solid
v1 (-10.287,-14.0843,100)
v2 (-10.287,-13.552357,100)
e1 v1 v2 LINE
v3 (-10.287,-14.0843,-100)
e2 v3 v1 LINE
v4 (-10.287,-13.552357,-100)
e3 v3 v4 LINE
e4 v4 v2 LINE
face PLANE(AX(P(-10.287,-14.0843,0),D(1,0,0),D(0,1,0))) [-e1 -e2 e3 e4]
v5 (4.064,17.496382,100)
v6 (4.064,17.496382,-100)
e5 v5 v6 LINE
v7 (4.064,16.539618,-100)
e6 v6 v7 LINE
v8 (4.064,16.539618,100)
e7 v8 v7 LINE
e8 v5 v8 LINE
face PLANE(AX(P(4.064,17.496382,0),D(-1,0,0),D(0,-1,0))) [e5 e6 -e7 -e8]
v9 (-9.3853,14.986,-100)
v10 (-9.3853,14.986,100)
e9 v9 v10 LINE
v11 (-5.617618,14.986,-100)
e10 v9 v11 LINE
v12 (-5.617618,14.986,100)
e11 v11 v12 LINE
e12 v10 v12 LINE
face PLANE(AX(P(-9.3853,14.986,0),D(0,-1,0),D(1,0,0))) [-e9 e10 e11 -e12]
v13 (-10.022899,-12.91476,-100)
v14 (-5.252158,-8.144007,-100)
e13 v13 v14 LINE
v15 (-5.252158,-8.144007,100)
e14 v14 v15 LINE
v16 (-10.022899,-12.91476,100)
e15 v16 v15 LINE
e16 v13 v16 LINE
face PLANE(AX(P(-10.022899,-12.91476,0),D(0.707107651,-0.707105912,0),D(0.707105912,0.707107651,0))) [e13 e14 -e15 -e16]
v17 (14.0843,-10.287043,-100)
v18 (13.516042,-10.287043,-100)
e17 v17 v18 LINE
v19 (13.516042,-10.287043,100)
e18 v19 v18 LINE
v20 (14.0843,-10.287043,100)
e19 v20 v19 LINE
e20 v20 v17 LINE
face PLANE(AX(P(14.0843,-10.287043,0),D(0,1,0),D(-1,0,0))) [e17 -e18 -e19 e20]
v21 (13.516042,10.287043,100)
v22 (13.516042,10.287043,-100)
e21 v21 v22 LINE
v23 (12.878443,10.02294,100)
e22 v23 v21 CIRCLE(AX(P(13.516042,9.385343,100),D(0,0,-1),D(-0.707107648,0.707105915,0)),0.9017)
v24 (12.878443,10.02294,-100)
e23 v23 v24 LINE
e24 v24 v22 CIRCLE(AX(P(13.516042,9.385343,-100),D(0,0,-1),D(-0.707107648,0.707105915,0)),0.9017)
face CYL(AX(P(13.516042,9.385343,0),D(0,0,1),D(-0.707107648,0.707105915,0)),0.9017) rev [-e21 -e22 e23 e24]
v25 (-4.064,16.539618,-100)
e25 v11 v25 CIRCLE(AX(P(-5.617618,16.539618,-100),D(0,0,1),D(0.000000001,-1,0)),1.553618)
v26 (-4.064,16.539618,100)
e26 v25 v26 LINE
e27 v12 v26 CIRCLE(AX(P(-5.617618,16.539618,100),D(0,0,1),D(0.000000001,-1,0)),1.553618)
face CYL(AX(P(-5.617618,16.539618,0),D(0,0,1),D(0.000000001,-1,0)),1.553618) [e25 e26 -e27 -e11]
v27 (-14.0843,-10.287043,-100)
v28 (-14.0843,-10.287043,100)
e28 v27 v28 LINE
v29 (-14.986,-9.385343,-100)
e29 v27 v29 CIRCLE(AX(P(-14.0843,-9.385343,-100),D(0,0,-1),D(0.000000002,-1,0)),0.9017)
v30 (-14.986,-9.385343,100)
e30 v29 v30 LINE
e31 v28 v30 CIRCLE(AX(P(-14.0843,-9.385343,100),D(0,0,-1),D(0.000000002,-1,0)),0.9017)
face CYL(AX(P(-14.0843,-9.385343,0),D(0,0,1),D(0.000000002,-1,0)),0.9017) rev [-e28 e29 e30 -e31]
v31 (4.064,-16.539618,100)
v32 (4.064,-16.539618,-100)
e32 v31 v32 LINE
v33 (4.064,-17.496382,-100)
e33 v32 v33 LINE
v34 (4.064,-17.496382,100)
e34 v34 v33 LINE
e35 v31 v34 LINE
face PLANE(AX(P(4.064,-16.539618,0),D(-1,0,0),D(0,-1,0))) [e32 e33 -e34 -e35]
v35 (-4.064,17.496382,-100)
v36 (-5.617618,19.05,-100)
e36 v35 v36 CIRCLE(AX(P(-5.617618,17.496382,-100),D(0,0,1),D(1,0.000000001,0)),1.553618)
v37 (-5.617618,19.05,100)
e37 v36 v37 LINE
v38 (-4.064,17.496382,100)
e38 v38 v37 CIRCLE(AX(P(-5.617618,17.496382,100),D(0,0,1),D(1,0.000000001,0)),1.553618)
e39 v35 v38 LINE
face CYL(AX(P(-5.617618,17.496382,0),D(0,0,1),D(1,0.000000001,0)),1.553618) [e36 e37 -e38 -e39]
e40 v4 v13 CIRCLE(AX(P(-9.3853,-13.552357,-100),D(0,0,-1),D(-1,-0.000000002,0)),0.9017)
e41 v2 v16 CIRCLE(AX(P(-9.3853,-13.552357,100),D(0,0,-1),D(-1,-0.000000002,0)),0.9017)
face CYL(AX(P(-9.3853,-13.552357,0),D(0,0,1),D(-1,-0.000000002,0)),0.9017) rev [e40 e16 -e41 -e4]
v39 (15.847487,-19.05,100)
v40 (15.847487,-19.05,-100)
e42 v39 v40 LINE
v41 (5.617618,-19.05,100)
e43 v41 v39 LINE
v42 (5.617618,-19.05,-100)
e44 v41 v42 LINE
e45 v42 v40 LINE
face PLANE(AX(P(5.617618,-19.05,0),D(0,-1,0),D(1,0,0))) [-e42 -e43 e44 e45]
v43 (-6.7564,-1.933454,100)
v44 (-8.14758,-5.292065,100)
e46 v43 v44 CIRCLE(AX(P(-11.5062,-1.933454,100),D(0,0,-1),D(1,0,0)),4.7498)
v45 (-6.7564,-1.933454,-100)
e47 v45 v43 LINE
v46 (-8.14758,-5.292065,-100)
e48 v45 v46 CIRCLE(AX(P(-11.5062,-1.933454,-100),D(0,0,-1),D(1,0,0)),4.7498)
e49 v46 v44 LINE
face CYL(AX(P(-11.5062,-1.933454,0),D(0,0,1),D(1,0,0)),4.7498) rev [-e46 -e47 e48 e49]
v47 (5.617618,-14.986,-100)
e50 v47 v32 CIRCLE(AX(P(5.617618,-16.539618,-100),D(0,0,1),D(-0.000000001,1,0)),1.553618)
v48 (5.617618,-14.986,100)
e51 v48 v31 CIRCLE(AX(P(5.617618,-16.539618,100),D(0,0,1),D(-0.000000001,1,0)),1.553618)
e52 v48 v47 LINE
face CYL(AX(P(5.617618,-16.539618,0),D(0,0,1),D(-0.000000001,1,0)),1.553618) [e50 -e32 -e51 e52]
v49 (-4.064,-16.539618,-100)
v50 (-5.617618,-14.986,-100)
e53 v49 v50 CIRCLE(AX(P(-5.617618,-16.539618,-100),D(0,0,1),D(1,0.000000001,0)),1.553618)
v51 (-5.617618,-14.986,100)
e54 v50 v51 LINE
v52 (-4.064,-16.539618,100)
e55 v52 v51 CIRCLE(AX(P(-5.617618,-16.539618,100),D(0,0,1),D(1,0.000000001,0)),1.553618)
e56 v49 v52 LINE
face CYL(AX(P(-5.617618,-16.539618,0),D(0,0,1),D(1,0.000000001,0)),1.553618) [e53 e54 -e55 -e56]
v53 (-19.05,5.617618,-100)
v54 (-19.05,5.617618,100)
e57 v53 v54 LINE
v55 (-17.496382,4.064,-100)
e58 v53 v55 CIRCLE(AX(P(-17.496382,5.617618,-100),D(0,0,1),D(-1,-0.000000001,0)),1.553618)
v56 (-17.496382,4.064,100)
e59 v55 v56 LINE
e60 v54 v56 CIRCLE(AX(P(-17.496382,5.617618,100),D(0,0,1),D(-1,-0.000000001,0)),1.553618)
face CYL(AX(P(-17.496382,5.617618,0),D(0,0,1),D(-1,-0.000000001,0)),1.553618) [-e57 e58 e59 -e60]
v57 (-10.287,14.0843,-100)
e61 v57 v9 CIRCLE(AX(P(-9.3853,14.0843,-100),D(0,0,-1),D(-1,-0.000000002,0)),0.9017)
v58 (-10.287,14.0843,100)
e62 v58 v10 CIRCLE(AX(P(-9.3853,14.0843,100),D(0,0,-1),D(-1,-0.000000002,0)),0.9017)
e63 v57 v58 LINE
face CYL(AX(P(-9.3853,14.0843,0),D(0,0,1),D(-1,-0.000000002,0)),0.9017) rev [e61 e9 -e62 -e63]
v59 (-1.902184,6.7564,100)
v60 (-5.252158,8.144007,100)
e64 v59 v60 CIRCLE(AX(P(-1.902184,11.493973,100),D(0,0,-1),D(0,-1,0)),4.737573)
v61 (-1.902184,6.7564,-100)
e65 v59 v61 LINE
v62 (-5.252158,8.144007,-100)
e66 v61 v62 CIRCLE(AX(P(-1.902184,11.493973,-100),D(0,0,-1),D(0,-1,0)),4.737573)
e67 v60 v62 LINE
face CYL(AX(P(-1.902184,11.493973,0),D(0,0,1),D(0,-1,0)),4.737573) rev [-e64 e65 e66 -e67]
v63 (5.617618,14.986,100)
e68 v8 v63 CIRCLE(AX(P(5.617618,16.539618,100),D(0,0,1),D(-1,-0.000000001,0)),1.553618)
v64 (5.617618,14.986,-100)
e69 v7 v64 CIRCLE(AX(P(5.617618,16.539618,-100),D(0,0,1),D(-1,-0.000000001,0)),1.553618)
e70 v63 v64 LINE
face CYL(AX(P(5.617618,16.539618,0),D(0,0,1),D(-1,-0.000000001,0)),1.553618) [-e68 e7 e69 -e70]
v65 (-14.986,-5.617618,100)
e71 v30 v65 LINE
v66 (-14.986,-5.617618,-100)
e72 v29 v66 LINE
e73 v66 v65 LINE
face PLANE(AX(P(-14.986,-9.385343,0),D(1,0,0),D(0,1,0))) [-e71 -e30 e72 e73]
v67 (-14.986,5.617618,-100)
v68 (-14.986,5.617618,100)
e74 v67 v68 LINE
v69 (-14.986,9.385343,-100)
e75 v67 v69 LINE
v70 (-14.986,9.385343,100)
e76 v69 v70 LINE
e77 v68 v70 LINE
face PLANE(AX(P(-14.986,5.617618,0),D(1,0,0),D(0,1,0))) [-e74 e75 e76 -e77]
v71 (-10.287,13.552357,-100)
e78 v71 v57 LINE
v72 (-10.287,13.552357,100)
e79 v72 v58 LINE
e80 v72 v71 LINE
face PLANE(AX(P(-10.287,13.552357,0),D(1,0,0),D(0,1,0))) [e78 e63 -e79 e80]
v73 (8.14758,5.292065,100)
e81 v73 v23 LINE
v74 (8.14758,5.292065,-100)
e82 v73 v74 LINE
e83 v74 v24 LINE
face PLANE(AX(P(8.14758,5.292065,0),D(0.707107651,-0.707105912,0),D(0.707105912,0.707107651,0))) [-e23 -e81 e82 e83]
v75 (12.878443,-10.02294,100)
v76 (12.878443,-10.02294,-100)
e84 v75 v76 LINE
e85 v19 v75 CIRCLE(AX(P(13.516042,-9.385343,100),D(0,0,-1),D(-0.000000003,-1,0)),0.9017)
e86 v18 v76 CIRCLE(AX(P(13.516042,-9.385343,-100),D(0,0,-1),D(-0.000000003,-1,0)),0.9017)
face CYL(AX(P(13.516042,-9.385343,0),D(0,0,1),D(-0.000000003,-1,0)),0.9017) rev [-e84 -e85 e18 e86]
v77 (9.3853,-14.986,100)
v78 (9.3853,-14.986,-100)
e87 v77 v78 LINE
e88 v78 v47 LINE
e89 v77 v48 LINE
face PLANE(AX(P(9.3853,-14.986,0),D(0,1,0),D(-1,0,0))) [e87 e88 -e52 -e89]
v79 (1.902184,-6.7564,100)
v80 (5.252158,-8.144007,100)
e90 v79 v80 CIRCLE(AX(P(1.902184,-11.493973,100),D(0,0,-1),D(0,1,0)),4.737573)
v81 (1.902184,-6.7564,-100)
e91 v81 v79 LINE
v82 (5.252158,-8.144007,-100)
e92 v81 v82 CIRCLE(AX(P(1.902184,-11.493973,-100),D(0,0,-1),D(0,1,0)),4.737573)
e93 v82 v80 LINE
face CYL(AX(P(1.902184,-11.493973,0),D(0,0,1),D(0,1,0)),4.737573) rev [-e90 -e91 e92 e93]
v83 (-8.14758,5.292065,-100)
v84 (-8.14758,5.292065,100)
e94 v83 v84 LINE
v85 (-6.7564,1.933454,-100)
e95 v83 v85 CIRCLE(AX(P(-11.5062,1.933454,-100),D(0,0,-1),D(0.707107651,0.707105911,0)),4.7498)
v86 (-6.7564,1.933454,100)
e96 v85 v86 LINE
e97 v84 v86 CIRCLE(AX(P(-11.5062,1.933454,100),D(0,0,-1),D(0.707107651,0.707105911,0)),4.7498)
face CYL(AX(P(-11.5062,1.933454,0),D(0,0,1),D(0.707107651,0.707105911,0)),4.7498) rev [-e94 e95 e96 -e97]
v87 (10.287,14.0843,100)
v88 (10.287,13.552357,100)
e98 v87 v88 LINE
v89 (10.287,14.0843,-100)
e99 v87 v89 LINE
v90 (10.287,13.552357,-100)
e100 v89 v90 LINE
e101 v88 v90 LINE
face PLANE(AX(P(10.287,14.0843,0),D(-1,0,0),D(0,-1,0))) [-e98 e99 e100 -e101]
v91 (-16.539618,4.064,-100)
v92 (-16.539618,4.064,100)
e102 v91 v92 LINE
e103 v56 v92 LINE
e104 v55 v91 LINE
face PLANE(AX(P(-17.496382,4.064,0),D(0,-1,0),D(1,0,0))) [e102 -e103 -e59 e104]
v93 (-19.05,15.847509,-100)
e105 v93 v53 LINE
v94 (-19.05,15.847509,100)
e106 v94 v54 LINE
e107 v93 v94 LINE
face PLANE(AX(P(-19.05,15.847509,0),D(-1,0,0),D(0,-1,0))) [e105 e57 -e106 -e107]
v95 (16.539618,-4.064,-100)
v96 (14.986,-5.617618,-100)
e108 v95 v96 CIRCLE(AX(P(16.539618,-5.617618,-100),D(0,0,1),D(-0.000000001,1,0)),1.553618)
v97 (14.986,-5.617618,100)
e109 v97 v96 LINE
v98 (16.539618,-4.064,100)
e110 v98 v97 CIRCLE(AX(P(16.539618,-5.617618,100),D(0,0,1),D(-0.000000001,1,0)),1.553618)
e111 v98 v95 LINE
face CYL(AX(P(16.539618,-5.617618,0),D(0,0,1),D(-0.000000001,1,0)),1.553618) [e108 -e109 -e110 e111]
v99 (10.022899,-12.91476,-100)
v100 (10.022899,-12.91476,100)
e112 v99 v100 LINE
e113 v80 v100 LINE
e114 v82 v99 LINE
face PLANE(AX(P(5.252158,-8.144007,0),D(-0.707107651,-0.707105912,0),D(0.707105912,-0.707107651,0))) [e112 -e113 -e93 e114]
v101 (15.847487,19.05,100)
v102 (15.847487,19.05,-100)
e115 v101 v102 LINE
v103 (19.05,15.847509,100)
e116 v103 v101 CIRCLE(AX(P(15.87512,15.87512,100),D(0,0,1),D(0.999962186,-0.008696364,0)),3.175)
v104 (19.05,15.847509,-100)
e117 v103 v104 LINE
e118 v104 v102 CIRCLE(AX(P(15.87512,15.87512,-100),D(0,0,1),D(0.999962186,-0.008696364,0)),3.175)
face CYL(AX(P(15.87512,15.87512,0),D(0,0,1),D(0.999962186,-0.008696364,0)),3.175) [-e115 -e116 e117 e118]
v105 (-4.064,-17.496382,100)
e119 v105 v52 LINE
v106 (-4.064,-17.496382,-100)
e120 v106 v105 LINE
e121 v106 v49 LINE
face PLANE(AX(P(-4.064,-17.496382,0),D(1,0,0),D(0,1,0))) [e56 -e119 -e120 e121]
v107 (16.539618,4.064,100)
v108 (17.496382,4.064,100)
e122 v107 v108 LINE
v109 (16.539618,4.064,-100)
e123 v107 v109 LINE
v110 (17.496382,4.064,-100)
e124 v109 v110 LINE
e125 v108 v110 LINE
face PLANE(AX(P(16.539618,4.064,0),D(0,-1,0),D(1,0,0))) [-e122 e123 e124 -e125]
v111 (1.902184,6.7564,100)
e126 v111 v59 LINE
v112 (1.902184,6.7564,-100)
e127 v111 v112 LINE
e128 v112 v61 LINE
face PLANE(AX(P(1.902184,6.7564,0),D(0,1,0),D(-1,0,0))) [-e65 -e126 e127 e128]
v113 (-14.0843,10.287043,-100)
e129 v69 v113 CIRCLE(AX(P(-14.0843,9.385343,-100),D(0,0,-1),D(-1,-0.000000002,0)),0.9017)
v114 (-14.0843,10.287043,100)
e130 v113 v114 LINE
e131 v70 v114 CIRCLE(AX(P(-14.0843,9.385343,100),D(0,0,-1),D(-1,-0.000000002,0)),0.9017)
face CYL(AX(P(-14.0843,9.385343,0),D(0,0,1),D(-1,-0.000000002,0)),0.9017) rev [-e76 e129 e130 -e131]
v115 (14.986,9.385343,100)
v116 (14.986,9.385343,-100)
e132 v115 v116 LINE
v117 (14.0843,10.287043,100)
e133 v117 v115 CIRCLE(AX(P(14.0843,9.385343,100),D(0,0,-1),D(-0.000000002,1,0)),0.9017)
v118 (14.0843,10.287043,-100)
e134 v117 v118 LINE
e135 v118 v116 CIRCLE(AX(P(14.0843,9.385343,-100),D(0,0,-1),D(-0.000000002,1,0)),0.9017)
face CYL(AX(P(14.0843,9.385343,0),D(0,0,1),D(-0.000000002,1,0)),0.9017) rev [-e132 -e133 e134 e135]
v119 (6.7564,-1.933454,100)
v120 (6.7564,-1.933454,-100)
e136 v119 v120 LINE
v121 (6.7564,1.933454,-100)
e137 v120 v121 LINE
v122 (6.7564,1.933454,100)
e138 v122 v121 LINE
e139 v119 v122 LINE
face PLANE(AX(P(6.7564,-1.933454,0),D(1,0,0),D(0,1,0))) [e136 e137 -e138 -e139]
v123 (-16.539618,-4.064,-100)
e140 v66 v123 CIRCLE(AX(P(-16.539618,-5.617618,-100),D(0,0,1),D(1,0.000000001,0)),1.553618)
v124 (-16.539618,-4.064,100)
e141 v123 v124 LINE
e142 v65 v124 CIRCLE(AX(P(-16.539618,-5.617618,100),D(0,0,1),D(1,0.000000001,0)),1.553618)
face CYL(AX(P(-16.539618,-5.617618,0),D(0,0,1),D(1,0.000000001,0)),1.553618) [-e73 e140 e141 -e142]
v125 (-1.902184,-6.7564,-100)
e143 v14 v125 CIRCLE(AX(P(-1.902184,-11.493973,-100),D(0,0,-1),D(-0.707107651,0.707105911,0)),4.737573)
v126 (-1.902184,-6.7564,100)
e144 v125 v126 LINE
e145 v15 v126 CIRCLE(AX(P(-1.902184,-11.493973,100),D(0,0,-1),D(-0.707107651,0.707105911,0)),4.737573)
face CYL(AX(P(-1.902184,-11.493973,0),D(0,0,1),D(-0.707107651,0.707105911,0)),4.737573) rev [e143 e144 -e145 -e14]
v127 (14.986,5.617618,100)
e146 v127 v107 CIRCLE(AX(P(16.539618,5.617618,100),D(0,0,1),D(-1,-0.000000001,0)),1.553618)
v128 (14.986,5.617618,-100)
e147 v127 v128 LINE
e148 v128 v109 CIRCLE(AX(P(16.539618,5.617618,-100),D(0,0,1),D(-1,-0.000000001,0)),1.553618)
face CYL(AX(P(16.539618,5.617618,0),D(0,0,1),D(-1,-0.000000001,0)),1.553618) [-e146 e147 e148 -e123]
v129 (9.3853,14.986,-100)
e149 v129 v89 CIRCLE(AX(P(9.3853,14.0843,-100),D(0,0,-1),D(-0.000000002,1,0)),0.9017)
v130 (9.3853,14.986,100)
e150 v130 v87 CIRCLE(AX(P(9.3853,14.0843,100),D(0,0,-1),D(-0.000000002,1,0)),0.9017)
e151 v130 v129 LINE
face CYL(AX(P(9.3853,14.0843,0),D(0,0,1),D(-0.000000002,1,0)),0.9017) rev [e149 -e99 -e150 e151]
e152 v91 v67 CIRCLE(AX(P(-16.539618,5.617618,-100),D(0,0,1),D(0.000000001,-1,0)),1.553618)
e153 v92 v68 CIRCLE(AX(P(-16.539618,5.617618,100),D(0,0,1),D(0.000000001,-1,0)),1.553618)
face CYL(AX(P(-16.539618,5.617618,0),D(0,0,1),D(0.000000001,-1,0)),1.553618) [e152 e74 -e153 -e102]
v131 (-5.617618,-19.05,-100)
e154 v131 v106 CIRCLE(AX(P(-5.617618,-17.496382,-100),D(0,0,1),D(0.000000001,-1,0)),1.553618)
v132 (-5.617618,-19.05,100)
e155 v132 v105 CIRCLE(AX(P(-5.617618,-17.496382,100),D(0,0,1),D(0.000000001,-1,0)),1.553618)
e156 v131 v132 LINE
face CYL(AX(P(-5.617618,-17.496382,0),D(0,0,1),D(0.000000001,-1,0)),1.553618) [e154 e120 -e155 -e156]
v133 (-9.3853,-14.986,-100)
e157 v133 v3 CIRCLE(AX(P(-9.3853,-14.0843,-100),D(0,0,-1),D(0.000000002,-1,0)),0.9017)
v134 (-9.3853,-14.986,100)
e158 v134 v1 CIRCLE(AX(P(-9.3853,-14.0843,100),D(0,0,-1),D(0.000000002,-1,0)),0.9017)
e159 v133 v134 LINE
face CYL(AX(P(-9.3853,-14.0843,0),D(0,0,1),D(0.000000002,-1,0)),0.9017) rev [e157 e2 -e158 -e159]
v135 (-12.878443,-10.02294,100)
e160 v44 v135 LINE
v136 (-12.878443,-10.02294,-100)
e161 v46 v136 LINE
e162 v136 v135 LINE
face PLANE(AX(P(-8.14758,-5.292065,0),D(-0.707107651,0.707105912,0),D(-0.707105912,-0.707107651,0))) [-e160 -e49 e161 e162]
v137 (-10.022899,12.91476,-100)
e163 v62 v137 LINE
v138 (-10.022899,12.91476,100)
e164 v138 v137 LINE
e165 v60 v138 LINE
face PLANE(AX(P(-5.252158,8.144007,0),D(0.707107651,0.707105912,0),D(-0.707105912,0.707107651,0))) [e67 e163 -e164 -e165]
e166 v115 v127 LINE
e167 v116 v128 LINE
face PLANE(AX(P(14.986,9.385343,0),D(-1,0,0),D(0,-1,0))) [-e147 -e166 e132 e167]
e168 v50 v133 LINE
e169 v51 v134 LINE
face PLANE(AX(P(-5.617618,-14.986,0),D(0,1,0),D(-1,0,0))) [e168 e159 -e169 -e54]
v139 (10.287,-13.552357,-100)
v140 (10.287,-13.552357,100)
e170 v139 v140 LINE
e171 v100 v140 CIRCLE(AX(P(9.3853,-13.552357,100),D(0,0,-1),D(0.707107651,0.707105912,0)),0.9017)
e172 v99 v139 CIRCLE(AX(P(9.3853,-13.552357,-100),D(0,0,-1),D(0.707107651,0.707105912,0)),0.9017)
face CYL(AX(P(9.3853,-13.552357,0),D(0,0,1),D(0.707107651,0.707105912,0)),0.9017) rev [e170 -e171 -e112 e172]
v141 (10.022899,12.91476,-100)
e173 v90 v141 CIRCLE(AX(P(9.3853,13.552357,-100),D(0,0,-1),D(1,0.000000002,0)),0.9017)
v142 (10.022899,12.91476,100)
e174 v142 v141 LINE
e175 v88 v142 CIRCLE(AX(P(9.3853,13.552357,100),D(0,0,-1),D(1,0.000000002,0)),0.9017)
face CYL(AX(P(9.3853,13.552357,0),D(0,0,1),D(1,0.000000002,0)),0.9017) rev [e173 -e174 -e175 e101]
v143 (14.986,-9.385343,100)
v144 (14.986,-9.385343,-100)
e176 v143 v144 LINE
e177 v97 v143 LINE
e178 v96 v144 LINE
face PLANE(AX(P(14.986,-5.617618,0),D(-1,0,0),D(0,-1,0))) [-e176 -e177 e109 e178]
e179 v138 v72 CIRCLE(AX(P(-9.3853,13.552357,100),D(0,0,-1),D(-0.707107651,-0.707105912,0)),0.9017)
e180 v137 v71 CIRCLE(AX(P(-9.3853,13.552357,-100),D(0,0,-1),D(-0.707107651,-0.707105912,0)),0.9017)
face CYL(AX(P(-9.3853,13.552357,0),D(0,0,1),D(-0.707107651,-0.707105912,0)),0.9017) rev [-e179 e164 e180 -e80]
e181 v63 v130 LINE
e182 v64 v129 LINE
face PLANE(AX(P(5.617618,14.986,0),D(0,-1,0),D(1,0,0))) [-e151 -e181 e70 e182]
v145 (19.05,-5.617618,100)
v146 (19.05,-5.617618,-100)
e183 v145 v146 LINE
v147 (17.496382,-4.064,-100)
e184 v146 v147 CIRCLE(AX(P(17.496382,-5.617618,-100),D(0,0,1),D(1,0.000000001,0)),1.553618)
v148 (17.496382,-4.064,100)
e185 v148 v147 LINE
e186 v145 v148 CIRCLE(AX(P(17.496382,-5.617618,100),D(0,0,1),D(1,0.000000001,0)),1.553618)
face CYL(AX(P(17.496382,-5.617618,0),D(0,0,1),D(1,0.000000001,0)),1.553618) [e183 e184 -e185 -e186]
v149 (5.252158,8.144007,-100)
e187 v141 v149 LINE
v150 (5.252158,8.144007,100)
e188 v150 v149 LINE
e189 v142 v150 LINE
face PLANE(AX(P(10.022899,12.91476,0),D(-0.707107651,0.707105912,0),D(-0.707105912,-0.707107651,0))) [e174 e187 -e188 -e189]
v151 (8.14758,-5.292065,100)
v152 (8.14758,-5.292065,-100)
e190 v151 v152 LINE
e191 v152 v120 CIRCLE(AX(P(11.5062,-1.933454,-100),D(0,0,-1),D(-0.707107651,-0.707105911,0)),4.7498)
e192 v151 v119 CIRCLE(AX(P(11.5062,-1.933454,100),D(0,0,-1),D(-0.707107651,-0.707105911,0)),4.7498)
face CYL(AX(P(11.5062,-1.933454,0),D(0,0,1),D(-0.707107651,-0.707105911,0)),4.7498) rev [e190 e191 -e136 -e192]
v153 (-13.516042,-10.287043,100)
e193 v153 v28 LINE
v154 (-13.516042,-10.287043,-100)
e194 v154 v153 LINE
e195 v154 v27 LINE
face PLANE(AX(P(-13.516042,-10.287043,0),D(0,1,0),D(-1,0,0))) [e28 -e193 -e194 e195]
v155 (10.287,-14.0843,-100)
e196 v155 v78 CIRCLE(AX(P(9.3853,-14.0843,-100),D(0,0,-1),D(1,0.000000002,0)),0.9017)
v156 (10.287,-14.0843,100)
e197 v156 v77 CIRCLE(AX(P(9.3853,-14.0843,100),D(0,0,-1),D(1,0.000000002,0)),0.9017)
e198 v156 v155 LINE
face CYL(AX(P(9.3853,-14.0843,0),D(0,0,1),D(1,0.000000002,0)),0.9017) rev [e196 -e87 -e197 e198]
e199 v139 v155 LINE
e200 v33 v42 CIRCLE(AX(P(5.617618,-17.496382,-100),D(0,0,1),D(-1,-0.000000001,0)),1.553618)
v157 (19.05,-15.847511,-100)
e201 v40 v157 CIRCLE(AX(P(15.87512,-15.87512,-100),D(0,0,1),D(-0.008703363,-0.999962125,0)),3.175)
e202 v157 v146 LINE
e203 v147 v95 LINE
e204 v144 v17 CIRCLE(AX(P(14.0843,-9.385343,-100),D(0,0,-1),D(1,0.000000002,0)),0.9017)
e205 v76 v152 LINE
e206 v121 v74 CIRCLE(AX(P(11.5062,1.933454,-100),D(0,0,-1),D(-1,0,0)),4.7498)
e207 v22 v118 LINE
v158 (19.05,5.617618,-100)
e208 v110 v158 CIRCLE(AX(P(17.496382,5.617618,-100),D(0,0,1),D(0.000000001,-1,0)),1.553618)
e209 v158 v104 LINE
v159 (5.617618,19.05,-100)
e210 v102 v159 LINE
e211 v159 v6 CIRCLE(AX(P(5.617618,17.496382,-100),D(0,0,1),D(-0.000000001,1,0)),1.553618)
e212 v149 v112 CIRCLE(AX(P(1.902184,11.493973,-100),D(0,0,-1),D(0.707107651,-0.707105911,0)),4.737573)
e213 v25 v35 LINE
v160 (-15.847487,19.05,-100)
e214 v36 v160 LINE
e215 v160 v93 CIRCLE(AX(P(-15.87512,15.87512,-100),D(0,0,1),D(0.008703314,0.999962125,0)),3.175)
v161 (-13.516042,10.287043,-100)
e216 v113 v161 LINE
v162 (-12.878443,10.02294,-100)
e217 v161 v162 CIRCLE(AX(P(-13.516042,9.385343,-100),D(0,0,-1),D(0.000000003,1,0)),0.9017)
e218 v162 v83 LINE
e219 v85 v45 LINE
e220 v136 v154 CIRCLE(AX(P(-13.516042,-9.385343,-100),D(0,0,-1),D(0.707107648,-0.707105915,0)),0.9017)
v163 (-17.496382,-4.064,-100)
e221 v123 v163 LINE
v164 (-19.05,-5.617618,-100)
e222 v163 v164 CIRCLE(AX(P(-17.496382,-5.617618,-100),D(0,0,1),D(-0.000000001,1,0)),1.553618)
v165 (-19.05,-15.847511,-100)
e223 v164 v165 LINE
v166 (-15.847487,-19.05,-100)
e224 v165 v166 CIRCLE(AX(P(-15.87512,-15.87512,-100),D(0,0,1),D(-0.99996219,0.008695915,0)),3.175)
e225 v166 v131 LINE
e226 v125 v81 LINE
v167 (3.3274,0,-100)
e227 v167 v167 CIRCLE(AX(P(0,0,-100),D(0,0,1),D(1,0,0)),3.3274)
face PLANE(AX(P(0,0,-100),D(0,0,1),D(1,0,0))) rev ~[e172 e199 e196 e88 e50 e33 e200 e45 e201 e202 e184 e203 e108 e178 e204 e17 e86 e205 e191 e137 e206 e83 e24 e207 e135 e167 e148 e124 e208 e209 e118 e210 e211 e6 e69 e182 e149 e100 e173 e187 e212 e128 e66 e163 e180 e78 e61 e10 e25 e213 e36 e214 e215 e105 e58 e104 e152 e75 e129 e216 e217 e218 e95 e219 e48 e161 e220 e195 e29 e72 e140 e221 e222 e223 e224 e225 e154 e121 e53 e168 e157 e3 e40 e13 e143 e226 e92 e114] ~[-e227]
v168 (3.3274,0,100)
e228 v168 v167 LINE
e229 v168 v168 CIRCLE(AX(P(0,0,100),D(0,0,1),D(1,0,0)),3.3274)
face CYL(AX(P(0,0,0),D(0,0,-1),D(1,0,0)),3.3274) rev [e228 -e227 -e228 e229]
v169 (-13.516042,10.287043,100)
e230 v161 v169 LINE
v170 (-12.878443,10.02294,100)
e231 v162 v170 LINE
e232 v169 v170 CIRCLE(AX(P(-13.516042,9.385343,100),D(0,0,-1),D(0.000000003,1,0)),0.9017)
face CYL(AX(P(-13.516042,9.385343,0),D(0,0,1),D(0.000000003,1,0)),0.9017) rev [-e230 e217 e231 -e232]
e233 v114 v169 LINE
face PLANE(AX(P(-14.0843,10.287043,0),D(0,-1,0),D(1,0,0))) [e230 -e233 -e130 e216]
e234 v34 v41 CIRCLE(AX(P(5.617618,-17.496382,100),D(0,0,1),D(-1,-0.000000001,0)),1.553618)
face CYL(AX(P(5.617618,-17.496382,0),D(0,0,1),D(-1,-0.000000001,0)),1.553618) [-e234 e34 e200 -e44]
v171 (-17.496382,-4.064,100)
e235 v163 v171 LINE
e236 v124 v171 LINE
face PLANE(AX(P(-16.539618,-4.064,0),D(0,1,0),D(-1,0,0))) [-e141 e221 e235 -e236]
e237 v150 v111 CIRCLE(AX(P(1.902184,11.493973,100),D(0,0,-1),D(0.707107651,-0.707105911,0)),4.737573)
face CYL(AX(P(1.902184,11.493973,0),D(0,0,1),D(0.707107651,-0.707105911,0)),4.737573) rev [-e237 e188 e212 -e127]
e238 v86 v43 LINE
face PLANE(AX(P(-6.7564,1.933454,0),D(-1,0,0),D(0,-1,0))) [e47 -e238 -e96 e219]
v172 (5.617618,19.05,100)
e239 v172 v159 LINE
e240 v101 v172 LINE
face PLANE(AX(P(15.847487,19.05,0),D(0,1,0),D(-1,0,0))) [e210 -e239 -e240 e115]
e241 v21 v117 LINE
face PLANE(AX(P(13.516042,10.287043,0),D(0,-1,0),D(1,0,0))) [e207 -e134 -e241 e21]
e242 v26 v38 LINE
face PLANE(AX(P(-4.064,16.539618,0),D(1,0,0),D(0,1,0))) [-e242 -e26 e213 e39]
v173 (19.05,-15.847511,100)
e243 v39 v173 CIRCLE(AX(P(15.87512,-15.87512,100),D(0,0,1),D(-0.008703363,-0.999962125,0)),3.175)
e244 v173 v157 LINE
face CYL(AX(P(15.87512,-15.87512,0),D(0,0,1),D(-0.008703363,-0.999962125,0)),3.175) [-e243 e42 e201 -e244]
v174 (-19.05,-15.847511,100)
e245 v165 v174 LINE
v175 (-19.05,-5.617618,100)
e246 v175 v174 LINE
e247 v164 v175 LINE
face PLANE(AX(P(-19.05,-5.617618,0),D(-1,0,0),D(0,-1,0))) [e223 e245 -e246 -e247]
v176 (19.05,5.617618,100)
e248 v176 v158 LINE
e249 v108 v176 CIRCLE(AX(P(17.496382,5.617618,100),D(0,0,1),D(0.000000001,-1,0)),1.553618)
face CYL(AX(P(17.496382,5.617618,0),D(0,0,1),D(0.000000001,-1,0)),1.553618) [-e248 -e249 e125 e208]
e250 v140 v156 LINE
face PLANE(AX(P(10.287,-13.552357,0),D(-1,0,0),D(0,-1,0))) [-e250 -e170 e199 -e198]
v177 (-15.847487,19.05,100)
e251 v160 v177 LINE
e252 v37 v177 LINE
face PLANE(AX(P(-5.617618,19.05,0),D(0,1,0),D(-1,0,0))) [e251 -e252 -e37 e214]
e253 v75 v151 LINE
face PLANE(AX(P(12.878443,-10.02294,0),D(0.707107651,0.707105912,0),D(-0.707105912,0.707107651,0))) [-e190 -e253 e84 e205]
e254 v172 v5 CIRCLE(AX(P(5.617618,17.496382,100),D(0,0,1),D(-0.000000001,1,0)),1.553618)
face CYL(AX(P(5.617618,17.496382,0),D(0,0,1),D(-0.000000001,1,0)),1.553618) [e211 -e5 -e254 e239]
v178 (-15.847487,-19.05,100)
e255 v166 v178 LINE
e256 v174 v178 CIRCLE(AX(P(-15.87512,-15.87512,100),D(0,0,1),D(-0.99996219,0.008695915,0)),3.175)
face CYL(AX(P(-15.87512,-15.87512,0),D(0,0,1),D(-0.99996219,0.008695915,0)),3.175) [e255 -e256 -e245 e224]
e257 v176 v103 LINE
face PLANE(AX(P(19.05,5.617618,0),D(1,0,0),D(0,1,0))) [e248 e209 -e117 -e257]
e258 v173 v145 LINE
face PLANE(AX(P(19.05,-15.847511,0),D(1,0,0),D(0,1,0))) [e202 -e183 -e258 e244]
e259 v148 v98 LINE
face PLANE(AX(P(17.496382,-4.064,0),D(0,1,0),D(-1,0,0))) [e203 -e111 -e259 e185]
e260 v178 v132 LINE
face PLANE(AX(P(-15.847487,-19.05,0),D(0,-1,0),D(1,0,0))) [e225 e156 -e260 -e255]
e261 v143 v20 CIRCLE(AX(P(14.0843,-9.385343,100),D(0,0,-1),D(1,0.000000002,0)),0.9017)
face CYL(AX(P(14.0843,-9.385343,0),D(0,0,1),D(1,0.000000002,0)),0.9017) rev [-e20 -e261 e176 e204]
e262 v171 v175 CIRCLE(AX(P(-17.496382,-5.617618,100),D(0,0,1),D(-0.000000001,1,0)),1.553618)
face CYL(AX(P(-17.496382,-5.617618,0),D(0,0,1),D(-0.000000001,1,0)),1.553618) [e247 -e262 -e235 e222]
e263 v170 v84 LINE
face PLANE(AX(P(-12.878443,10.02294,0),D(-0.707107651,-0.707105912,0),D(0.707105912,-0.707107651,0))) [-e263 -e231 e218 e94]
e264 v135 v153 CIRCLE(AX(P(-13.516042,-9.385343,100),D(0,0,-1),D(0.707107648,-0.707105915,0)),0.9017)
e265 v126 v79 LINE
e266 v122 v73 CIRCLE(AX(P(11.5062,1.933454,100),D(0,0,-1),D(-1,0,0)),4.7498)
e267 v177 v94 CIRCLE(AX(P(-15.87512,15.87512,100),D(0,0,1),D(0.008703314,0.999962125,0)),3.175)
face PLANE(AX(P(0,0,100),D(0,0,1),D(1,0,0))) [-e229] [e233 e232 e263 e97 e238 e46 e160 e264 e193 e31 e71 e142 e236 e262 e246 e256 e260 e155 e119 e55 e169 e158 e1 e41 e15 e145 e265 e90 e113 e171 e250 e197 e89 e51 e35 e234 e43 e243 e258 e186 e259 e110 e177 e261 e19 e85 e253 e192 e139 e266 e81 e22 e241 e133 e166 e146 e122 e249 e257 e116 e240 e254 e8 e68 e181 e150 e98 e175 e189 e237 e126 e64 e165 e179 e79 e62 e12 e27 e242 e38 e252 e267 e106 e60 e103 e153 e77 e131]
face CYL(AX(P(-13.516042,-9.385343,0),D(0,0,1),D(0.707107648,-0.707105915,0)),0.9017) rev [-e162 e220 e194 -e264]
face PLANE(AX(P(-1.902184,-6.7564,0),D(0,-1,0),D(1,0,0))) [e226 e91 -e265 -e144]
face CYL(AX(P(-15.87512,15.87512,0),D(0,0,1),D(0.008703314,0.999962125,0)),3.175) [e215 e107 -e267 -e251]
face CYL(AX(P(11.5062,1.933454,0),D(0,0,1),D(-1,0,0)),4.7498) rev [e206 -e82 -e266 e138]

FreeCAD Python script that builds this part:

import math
import FreeCAD as App
import Part
import Sketcher

V = App.Vector
Q = App.Units.Quantity

doc = App.newDocument("Part")
body = doc.addObject("PartDesign::Body", "Body")

# Sketch on XY plane
sketch1 = body.newObject("Sketcher::SketchObject", "Sketch")
sketch1.AttachmentSupport = (doc.getObject("XY_Plane"), [""])
sketch1.MapMode = "FlatFace"
sketch1.addGeometry([
    Part.LineSegment(V(-10.287, 13.552357, 0), V(-10.287, 14.0843, 0)),  # 0
    Part.ArcOfCircle(Part.Circle(V(-9.3853, 14.0843, 0), V(0, 0, 1), 0.9017), math.radians(90), math.radians(180)),  # 1
    Part.LineSegment(V(-9.3853, 14.986, 0), V(-5.617618, 14.986, 0)),  # 2
    Part.ArcOfCircle(Part.Circle(V(-5.617618, 16.539618, 0), V(0, 0, 1), 1.553618), math.radians(-90), math.radians(0)),  # 3
    Part.LineSegment(V(-4.064, 16.539618, 0), V(-4.064, 17.496382, 0)),  # 4
    Part.ArcOfCircle(Part.Circle(V(-5.617618, 17.496382, 0), V(0, 0, 1), 1.553618), math.radians(0), math.radians(90)),  # 5
    Part.LineSegment(V(-5.617618, 19.05, 0), V(-15.847487, 19.05, 0)),  # 6
    Part.ArcOfCircle(Part.Circle(V(-15.87512, 15.87512, 0), V(0, 0, 1), 3.175), math.radians(89.501331), math.radians(180.498271)),  # 7
    Part.LineSegment(V(-19.05, 15.847509, 0), V(-19.05, 5.617618, 0)),  # 8
    Part.ArcOfCircle(Part.Circle(V(-17.496382, 5.617618, 0), V(0, 0, 1), 1.553618), math.radians(-180), math.radians(-90)),  # 9
    Part.LineSegment(V(-17.496382, 4.064, 0), V(-16.539618, 4.064, 0)),  # 10
    Part.ArcOfCircle(Part.Circle(V(-16.539618, 5.617618, 0), V(0, 0, 1), 1.553618), math.radians(-90), math.radians(0)),  # 11
    Part.LineSegment(V(-14.986, 5.617618, 0), V(-14.986, 9.385343, 0)),  # 12
    Part.ArcOfCircle(Part.Circle(V(-14.0843, 9.385343, 0), V(0, 0, 1), 0.9017), math.radians(90), math.radians(180)),  # 13
    Part.LineSegment(V(-14.0843, 10.287043, 0), V(-13.516042, 10.287043, 0)),  # 14
    Part.ArcOfCircle(Part.Circle(V(-13.516042, 9.385343, 0), V(0, 0, 1), 0.9017), math.radians(44.99993), math.radians(90)),  # 15
    Part.LineSegment(V(-12.878443, 10.02294, 0), V(-8.14758, 5.292065, 0)),  # 16
    Part.ArcOfCircle(Part.Circle(V(-11.5062, 1.933454, 0), V(0, 0, 1), 4.7498), math.radians(0), math.radians(44.99993)),  # 17
    Part.LineSegment(V(-6.7564, 1.933454, 0), V(-6.7564, -1.933454, 0)),  # 18
    Part.ArcOfCircle(Part.Circle(V(-11.5062, -1.933454, 0), V(0, 0, 1), 4.7498), math.radians(-44.99993), math.radians(0)),  # 19
    Part.LineSegment(V(-8.14758, -5.292065, 0), V(-12.878443, -10.02294, 0)),  # 20
    Part.ArcOfCircle(Part.Circle(V(-13.516042, -9.385343, 0), V(0, 0, 1), 0.9017), math.radians(-90), math.radians(-44.99993)),  # 21
    Part.LineSegment(V(-13.516042, -10.287043, 0), V(-14.0843, -10.287043, 0)),  # 22
    Part.ArcOfCircle(Part.Circle(V(-14.0843, -9.385343, 0), V(0, 0, 1), 0.9017), math.radians(180), math.radians(270)),  # 23
    Part.LineSegment(V(-14.986, -9.385343, 0), V(-14.986, -5.617618, 0)),  # 24
    Part.ArcOfCircle(Part.Circle(V(-16.539618, -5.617618, 0), V(0, 0, 1), 1.553618), math.radians(0), math.radians(90)),  # 25
    Part.LineSegment(V(-16.539618, -4.064, 0), V(-17.496382, -4.064, 0)),  # 26
    Part.ArcOfCircle(Part.Circle(V(-17.496382, -5.617618, 0), V(0, 0, 1), 1.553618), math.radians(90), math.radians(180)),  # 27
    Part.LineSegment(V(-19.05, -5.617618, 0), V(-19.05, -15.847511, 0)),  # 28
    Part.ArcOfCircle(Part.Circle(V(-15.87512, -15.87512, 0), V(0, 0, 1), 3.175), math.radians(179.501754), math.radians(270.498672)),  # 29
    Part.LineSegment(V(-15.847487, -19.05, 0), V(-5.617618, -19.05, 0)),  # 30
    Part.ArcOfCircle(Part.Circle(V(-5.617618, -17.496382, 0), V(0, 0, 1), 1.553618), math.radians(-90), math.radians(0)),  # 31
    Part.LineSegment(V(-4.064, -17.496382, 0), V(-4.064, -16.539618, 0)),  # 32
    Part.ArcOfCircle(Part.Circle(V(-5.617618, -16.539618, 0), V(0, 0, 1), 1.553618), math.radians(0), math.radians(90)),  # 33
    Part.LineSegment(V(-5.617618, -14.986, 0), V(-9.3853, -14.986, 0)),  # 34
    Part.ArcOfCircle(Part.Circle(V(-9.3853, -14.0843, 0), V(0, 0, 1), 0.9017), math.radians(180), math.radians(270)),  # 35
    Part.LineSegment(V(-10.287, -14.0843, 0), V(-10.287, -13.552357, 0)),  # 36
    Part.ArcOfCircle(Part.Circle(V(-9.3853, -13.552357, 0), V(0, 0, 1), 0.9017), math.radians(135.00007), math.radians(180)),  # 37
    Part.LineSegment(V(-10.022899, -12.91476, 0), V(-5.252158, -8.144007, 0)),  # 38
    Part.ArcOfCircle(Part.Circle(V(-1.902184, -11.493973, 0), V(0, 0, 1), 4.737573), math.radians(90), math.radians(135.00007)),  # 39
    Part.LineSegment(V(-1.902184, -6.7564, 0), V(1.902184, -6.7564, 0)),  # 40
    Part.ArcOfCircle(Part.Circle(V(1.902184, -11.493973, 0), V(0, 0, 1), 4.737573), math.radians(44.99993), math.radians(90)),  # 41
    Part.LineSegment(V(5.252158, -8.144007, 0), V(10.022899, -12.91476, 0)),  # 42
    Part.ArcOfCircle(Part.Circle(V(9.3853, -13.552357, 0), V(0, 0, 1), 0.9017), math.radians(0), math.radians(44.99993)),  # 43
    Part.LineSegment(V(10.287, -13.552357, 0), V(10.287, -14.0843, 0)),  # 44
    Part.ArcOfCircle(Part.Circle(V(9.3853, -14.0843, 0), V(0, 0, 1), 0.9017), math.radians(-90), math.radians(0)),  # 45
    Part.LineSegment(V(9.3853, -14.986, 0), V(5.617618, -14.986, 0)),  # 46
    Part.ArcOfCircle(Part.Circle(V(5.617618, -16.539618, 0), V(0, 0, 1), 1.553618), math.radians(90), math.radians(180)),  # 47
    Part.LineSegment(V(4.064, -16.539618, 0), V(4.064, -17.496382, 0)),  # 48
    Part.ArcOfCircle(Part.Circle(V(5.617618, -17.496382, 0), V(0, 0, 1), 1.553618), math.radians(-180), math.radians(-90)),  # 49
    Part.LineSegment(V(5.617618, -19.05, 0), V(15.847487, -19.05, 0)),  # 50
    Part.ArcOfCircle(Part.Circle(V(15.87512, -15.87512, 0), V(0, 0, 1), 3.175), math.radians(-90.498672), math.radians(0.498246)),  # 51
    Part.LineSegment(V(19.05, -15.847511, 0), V(19.05, -5.617618, 0)),  # 52
    Part.ArcOfCircle(Part.Circle(V(17.496382, -5.617618, 0), V(0, 0, 1), 1.553618), math.radians(0), math.radians(90)),  # 53
    Part.LineSegment(V(17.496382, -4.064, 0), V(16.539618, -4.064, 0)),  # 54
    Part.ArcOfCircle(Part.Circle(V(16.539618, -5.617618, 0), V(0, 0, 1), 1.553618), math.radians(90), math.radians(180)),  # 55
    Part.LineSegment(V(14.986, -5.617618, 0), V(14.986, -9.385343, 0)),  # 56
    Part.ArcOfCircle(Part.Circle(V(14.0843, -9.385343, 0), V(0, 0, 1), 0.9017), math.radians(-90), math.radians(0)),  # 57
    Part.LineSegment(V(14.0843, -10.287043, 0), V(13.516042, -10.287043, 0)),  # 58
    Part.ArcOfCircle(Part.Circle(V(13.516042, -9.385343, 0), V(0, 0, 1), 0.9017), math.radians(-135.00007), math.radians(-90)),  # 59
    Part.LineSegment(V(12.878443, -10.02294, 0), V(8.14758, -5.292065, 0)),  # 60
    Part.ArcOfCircle(Part.Circle(V(11.5062, -1.933454, 0), V(0, 0, 1), 4.7498), math.radians(-180), math.radians(-135.00007)),  # 61
    Part.LineSegment(V(6.7564, -1.933454, 0), V(6.7564, 1.933454, 0)),  # 62
    Part.ArcOfCircle(Part.Circle(V(11.5062, 1.933454, 0), V(0, 0, 1), 4.7498), math.radians(135.00007), math.radians(180)),  # 63
    Part.LineSegment(V(8.14758, 5.292065, 0), V(12.878443, 10.02294, 0)),  # 64
    Part.ArcOfCircle(Part.Circle(V(13.516042, 9.385343, 0), V(0, 0, 1), 0.9017), math.radians(90), math.radians(135.00007)),  # 65
    Part.LineSegment(V(13.516042, 10.287043, 0), V(14.0843, 10.287043, 0)),  # 66
    Part.ArcOfCircle(Part.Circle(V(14.0843, 9.385343, 0), V(0, 0, 1), 0.9017), math.radians(0), math.radians(90)),  # 67
    Part.LineSegment(V(14.986, 9.385343, 0), V(14.986, 5.617618, 0)),  # 68
    Part.ArcOfCircle(Part.Circle(V(16.539618, 5.617618, 0), V(0, 0, 1), 1.553618), math.radians(-180), math.radians(-90)),  # 69
    Part.LineSegment(V(16.539618, 4.064, 0), V(17.496382, 4.064, 0)),  # 70
    Part.ArcOfCircle(Part.Circle(V(17.496382, 5.617618, 0), V(0, 0, 1), 1.553618), math.radians(-90), math.radians(0)),  # 71
    Part.LineSegment(V(19.05, 5.617618, 0), V(19.05, 15.847509, 0)),  # 72
    Part.ArcOfCircle(Part.Circle(V(15.87512, 15.87512, 0), V(0, 0, 1), 3.175), math.radians(-0.498271), math.radians(90.498669)),  # 73
    Part.LineSegment(V(15.847487, 19.05, 0), V(5.617618, 19.05, 0)),  # 74
    Part.ArcOfCircle(Part.Circle(V(5.617618, 17.496382, 0), V(0, 0, 1), 1.553618), math.radians(90), math.radians(180)),  # 75
    Part.LineSegment(V(4.064, 17.496382, 0), V(4.064, 16.539618, 0)),  # 76
    Part.ArcOfCircle(Part.Circle(V(5.617618, 16.539618, 0), V(0, 0, 1), 1.553618), math.radians(-180), math.radians(-90)),  # 77
    Part.LineSegment(V(5.617618, 14.986, 0), V(9.3853, 14.986, 0)),  # 78
    Part.ArcOfCircle(Part.Circle(V(9.3853, 14.0843, 0), V(0, 0, 1), 0.9017), math.radians(0), math.radians(90)),  # 79
    Part.LineSegment(V(10.287, 14.0843, 0), V(10.287, 13.552357, 0)),  # 80
    Part.ArcOfCircle(Part.Circle(V(9.3853, 13.552357, 0), V(0, 0, 1), 0.9017), math.radians(-44.99993), math.radians(0)),  # 81
    Part.LineSegment(V(10.022899, 12.91476, 0), V(5.252158, 8.144007, 0)),  # 82
    Part.ArcOfCircle(Part.Circle(V(1.902184, 11.493973, 0), V(0, 0, 1), 4.737573), math.radians(-90), math.radians(-44.99993)),  # 83
    Part.LineSegment(V(1.902184, 6.7564, 0), V(-1.902184, 6.7564, 0)),  # 84
    Part.ArcOfCircle(Part.Circle(V(-1.902184, 11.493973, 0), V(0, 0, 1), 4.737573), math.radians(-135.00007), math.radians(-90)),  # 85
    Part.LineSegment(V(-5.252158, 8.144007, 0), V(-10.022899, 12.91476, 0)),  # 86
    Part.ArcOfCircle(Part.Circle(V(-9.3853, 13.552357, 0), V(0, 0, 1), 0.9017), math.radians(180), math.radians(224.99993)),  # 87
    Part.Circle(V(0, 0, 0), V(0, 0, 1), 3.3274),  # 88
], False)
sketch1.addConstraint([
    Sketcher.Constraint("Tangent", 0, 2, 1, 2),
    Sketcher.Constraint("Tangent", 1, 1, 2, 1),
    Sketcher.Constraint("Tangent", 2, 2, 3, 1),
    Sketcher.Constraint("Tangent", 3, 2, 4, 1),
    Sketcher.Constraint("Tangent", 4, 2, 5, 1),
    Sketcher.Constraint("Tangent", 5, 2, 6, 1),
    Sketcher.Constraint("Coincident", 6, 2, 7, 1),
    Sketcher.Constraint("Coincident", 7, 2, 8, 1),
    Sketcher.Constraint("Tangent", 8, 2, 9, 1),
    Sketcher.Constraint("Tangent", 9, 2, 10, 1),
    Sketcher.Constraint("Tangent", 10, 2, 11, 1),
    Sketcher.Constraint("Tangent", 11, 2, 12, 1),
    Sketcher.Constraint("Tangent", 12, 2, 13, 2),
    Sketcher.Constraint("Tangent", 13, 1, 14, 1),
    Sketcher.Constraint("Tangent", 14, 2, 15, 2),
    Sketcher.Constraint("Tangent", 15, 1, 16, 1),
    Sketcher.Constraint("Tangent", 16, 2, 17, 2),
    Sketcher.Constraint("Tangent", 17, 1, 18, 1),
    Sketcher.Constraint("Tangent", 18, 2, 19, 2),
    Sketcher.Constraint("Tangent", 19, 1, 20, 1),
    Sketcher.Constraint("Tangent", 20, 2, 21, 2),
    Sketcher.Constraint("Tangent", 21, 1, 22, 1),
    Sketcher.Constraint("Tangent", 22, 2, 23, 2),
    Sketcher.Constraint("Tangent", 23, 1, 24, 1),
    Sketcher.Constraint("Tangent", 24, 2, 25, 1),
    Sketcher.Constraint("Tangent", 25, 2, 26, 1),
    Sketcher.Constraint("Tangent", 26, 2, 27, 1),
    Sketcher.Constraint("Tangent", 27, 2, 28, 1),
    Sketcher.Constraint("Coincident", 28, 2, 29, 1),
    Sketcher.Constraint("Coincident", 29, 2, 30, 1),
    Sketcher.Constraint("Tangent", 30, 2, 31, 1),
    Sketcher.Constraint("Tangent", 31, 2, 32, 1),
    Sketcher.Constraint("Tangent", 32, 2, 33, 1),
    Sketcher.Constraint("Tangent", 33, 2, 34, 1),
    Sketcher.Constraint("Tangent", 34, 2, 35, 2),
    Sketcher.Constraint("Tangent", 35, 1, 36, 1),
    Sketcher.Constraint("Tangent", 36, 2, 37, 2),
    Sketcher.Constraint("Tangent", 37, 1, 38, 1),
    Sketcher.Constraint("Tangent", 38, 2, 39, 2),
    Sketcher.Constraint("Tangent", 39, 1, 40, 1),
    Sketcher.Constraint("Tangent", 40, 2, 41, 2),
    Sketcher.Constraint("Tangent", 41, 1, 42, 1),
    Sketcher.Constraint("Tangent", 42, 2, 43, 2),
    Sketcher.Constraint("Tangent", 43, 1, 44, 1),
    Sketcher.Constraint("Tangent", 44, 2, 45, 2),
    Sketcher.Constraint("Tangent", 45, 1, 46, 1),
    Sketcher.Constraint("Tangent", 46, 2, 47, 1),
    Sketcher.Constraint("Tangent", 47, 2, 48, 1),
    Sketcher.Constraint("Tangent", 48, 2, 49, 1),
    Sketcher.Constraint("Tangent", 49, 2, 50, 1),
    Sketcher.Constraint("Coincident", 50, 2, 51, 1),
    Sketcher.Constraint("Coincident", 51, 2, 52, 1),
    Sketcher.Constraint("Tangent", 52, 2, 53, 1),
    Sketcher.Constraint("Tangent", 53, 2, 54, 1),
    Sketcher.Constraint("Tangent", 54, 2, 55, 1),
    Sketcher.Constraint("Tangent", 55, 2, 56, 1),
    Sketcher.Constraint("Tangent", 56, 2, 57, 2),
    Sketcher.Constraint("Tangent", 57, 1, 58, 1),
    Sketcher.Constraint("Tangent", 58, 2, 59, 2),
    Sketcher.Constraint("Tangent", 59, 1, 60, 1),
    Sketcher.Constraint("Tangent", 60, 2, 61, 2),
    Sketcher.Constraint("Tangent", 61, 1, 62, 1),
    Sketcher.Constraint("Tangent", 62, 2, 63, 2),
    Sketcher.Constraint("Tangent", 63, 1, 64, 1),
    Sketcher.Constraint("Tangent", 64, 2, 65, 2),
    Sketcher.Constraint("Tangent", 65, 1, 66, 1),
    Sketcher.Constraint("Tangent", 66, 2, 67, 2),
    Sketcher.Constraint("Tangent", 67, 1, 68, 1),
    Sketcher.Constraint("Tangent", 68, 2, 69, 1),
    Sketcher.Constraint("Tangent", 69, 2, 70, 1),
    Sketcher.Constraint("Tangent", 70, 2, 71, 1),
    Sketcher.Constraint("Tangent", 71, 2, 72, 1),
    Sketcher.Constraint("Coincident", 72, 2, 73, 1),
    Sketcher.Constraint("Coincident", 73, 2, 74, 1),
    Sketcher.Constraint("Tangent", 74, 2, 75, 1),
    Sketcher.Constraint("Tangent", 75, 2, 76, 1),
    Sketcher.Constraint("Tangent", 76, 2, 77, 1),
    Sketcher.Constraint("Tangent", 77, 2, 78, 1),
    Sketcher.Constraint("Tangent", 78, 2, 79, 2),
    Sketcher.Constraint("Tangent", 79, 1, 80, 1),
    Sketcher.Constraint("Tangent", 80, 2, 81, 2),
    Sketcher.Constraint("Tangent", 81, 1, 82, 1),
    Sketcher.Constraint("Tangent", 82, 2, 83, 2),
    Sketcher.Constraint("Tangent", 83, 1, 84, 1),
    Sketcher.Constraint("Tangent", 84, 2, 85, 2),
    Sketcher.Constraint("Tangent", 85, 1, 86, 1),
    Sketcher.Constraint("Tangent", 86, 2, 87, 2),
    Sketcher.Constraint("Tangent", 87, 1, 0, 1),
    Sketcher.Constraint("Vertical", 0),
    Sketcher.Constraint("Horizontal", 2),
    Sketcher.Constraint("Vertical", 4),
    Sketcher.Constraint("Horizontal", 6),
    Sketcher.Constraint("Vertical", 8),
    Sketcher.Constraint("Horizontal", 10),
    Sketcher.Constraint("Vertical", 12),
    Sketcher.Constraint("Horizontal", 14),
    Sketcher.Constraint("Vertical", 18),
    Sketcher.Constraint("Horizontal", 22),
    Sketcher.Constraint("Vertical", 24),
    Sketcher.Constraint("Horizontal", 26),
    Sketcher.Constraint("Vertical", 28),
    Sketcher.Constraint("Horizontal", 30),
    Sketcher.Constraint("Vertical", 32),
    Sketcher.Constraint("Horizontal", 34),
    Sketcher.Constraint("Vertical", 36),
    Sketcher.Constraint("Horizontal", 40),
    Sketcher.Constraint("Vertical", 44),
    Sketcher.Constraint("Horizontal", 46),
    Sketcher.Constraint("Vertical", 48),
    Sketcher.Constraint("Horizontal", 50),
    Sketcher.Constraint("Vertical", 52),
    Sketcher.Constraint("Horizontal", 54),
    Sketcher.Constraint("Vertical", 56),
    Sketcher.Constraint("Horizontal", 58),
    Sketcher.Constraint("Vertical", 62),
    Sketcher.Constraint("Horizontal", 66),
    Sketcher.Constraint("Vertical", 68),
    Sketcher.Constraint("Horizontal", 70),
    Sketcher.Constraint("Vertical", 72),
    Sketcher.Constraint("Horizontal", 74),
    Sketcher.Constraint("Vertical", 76),
    Sketcher.Constraint("Horizontal", 78),
    Sketcher.Constraint("Vertical", 80),
    Sketcher.Constraint("Horizontal", 84),
    Sketcher.Constraint("Coincident", 88, 3, -1, 1),
    Sketcher.Constraint("Equal", 3, 5),
    Sketcher.Constraint("Equal", 5, 9),
    Sketcher.Constraint("Equal", 9, 11),
    Sketcher.Constraint("Equal", 1, 13),
    Sketcher.Constraint("Equal", 13, 15),
    Sketcher.Constraint("Equal", 17, 19),
    Sketcher.Constraint("Equal", 15, 21),
    Sketcher.Constraint("Equal", 21, 23),
    Sketcher.Constraint("Equal", 11, 25),
    Sketcher.Constraint("Equal", 25, 27),
    Sketcher.Constraint("Equal", 7, 29),
    Sketcher.Constraint("Equal", 27, 31),
    Sketcher.Constraint("Equal", 31, 33),
    Sketcher.Constraint("Equal", 23, 35),
    Sketcher.Constraint("Equal", 35, 37),
    Sketcher.Constraint("Equal", 39, 41),
    Sketcher.Constraint("Equal", 37, 43),
    Sketcher.Constraint("Equal", 43, 45),
    Sketcher.Constraint("Equal", 33, 47),
    Sketcher.Constraint("Equal", 47, 49),
    Sketcher.Constraint("Equal", 29, 51),
    Sketcher.Constraint("Equal", 49, 53),
    Sketcher.Constraint("Equal", 53, 55),
    Sketcher.Constraint("Equal", 45, 57),
    Sketcher.Constraint("Equal", 57, 59),
    Sketcher.Constraint("Equal", 19, 61),
    Sketcher.Constraint("Equal", 61, 63),
    Sketcher.Constraint("Equal", 59, 65),
    Sketcher.Constraint("Equal", 65, 67),
    Sketcher.Constraint("Equal", 55, 69),
    Sketcher.Constraint("Equal", 69, 71),
    Sketcher.Constraint("Equal", 51, 73),
    Sketcher.Constraint("Equal", 71, 75),
    Sketcher.Constraint("Equal", 75, 77),
    Sketcher.Constraint("Equal", 67, 79),
    Sketcher.Constraint("Equal", 79, 81),
    Sketcher.Constraint("Equal", 41, 83),
    Sketcher.Constraint("Equal", 83, 85),
    Sketcher.Constraint("Equal", 81, 87),
    Sketcher.Constraint("Symmetric", 1, 3, 45, 3, -1, 1),
    Sketcher.Constraint("Symmetric", 5, 3, 49, 3, -1, 1),
    Sketcher.Constraint("Symmetric", 7, 3, 51, 3, -1, 1),
    Sketcher.Constraint("Symmetric", 9, 3, 53, 3, -1, 1),
    Sketcher.Constraint("Symmetric", 13, 3, 57, 3, -1, 1),
    Sketcher.Constraint("Symmetric", 17, 3, 61, 3, -1, 1),
    Sketcher.Constraint("Symmetric", 21, 3, 65, 3, -1, 1),
    Sketcher.Constraint("Symmetric", 25, 3, 69, 3, -1, 1),
    Sketcher.Constraint("Symmetric", 29, 3, 73, 3, -1, 1),
    Sketcher.Constraint("Symmetric", 31, 3, 75, 3, -1, 1),
    Sketcher.Constraint("Symmetric", 35, 3, 79, 3, -1, 1),
    Sketcher.Constraint("Symmetric", 39, 3, 83, 3, -1, 1),
    Sketcher.Constraint("Symmetric", 41, 1, 85, 1, -1, 1),
    Sketcher.Constraint("Symmetric", 37, 3, 43, 3, -2),
    Sketcher.Constraint("Symmetric", 33, 3, 47, 3, -2),
    Sketcher.Constraint("Symmetric", 29, 3, 51, 3, -2),
    Sketcher.Constraint("Symmetric", 27, 3, 53, 3, -2),
    Sketcher.Constraint("Symmetric", 23, 3, 57, 3, -2),
    Sketcher.Constraint("Symmetric", 20, 2, 59, 1, -2),
    Sketcher.Constraint("Symmetric", 16, 2, 63, 1, -2),
    Sketcher.Constraint("Symmetric", 82, 2, 85, 1, -2),
    Sketcher.Constraint("Parallel", 20, 38),
    Sketcher.Constraint("Horizontal", 31, 3, 49, 3),
    Sketcher.Constraint("Horizontal", 7, 2, 72, 2),
    Sketcher.Constraint("Equal", 70, 4),
    Sketcher.Constraint("Diameter", 88, Q("0.262 in")),
    Sketcher.Constraint("Radius", 7, Q("0.125 in")),
    Sketcher.Constraint("Radius", 17, Q("0.187 in")),
    Sketcher.Constraint("Radius", 1, Q("0.0355 in")),
    Sketcher.Constraint("DistanceY", -1, 1, 1, 1, Q("0.59 in")),
    Sketcher.Constraint("DistanceX", 3, 2, -1, 1, Q("0.16 in")),
    Sketcher.Constraint("DistanceY", -1, 1, 5, 2, Q("0.75 in")),
    Sketcher.Constraint("DistanceX", 7, 2, -1, 1, Q("0.75 in")),
    Sketcher.Constraint("DistanceY", -1, 1, 9, 2, Q("0.16 in")),
    Sketcher.Constraint("DistanceX", 17, 3, -1, 1, Q("0.453 in")),
    Sketcher.Constraint("DistanceX", 0, 2, -1, 1, Q("0.405 in")),
    Sketcher.Constraint("DistanceY", 39, 1, -1, 1, Q("0.266 in")),
    Sketcher.Constraint("Radius", 3, Q("1.553618 mm")),
    Sketcher.Constraint("Radius", 39, Q("4.737573 mm")),
    Sketcher.Constraint("DistanceX", 6, 2, 6, 1, Q("10.229869 mm")),
    Sketcher.Constraint("DistanceY", 8, 2, 8, 1, Q("10.229892 mm")),
    Sketcher.Constraint("DistanceX", 37, 1, -1, 1, Q("10.022899 mm")),
    Sketcher.Constraint("Distance", 16, Q("6.690459 mm")),
    Sketcher.Constraint("DistanceX", 40, 1, 40, 2, Q("3.804368 mm")),
    Sketcher.Constraint("DistanceY", 12, 1, 12, 2, Q("3.767725 mm")),
])
pad1 = body.newObject("PartDesign::Pad", "Pad")
pad1.Profile = sketch1
pad1.Length = 200
pad1.Midplane = True

doc.recompute()
